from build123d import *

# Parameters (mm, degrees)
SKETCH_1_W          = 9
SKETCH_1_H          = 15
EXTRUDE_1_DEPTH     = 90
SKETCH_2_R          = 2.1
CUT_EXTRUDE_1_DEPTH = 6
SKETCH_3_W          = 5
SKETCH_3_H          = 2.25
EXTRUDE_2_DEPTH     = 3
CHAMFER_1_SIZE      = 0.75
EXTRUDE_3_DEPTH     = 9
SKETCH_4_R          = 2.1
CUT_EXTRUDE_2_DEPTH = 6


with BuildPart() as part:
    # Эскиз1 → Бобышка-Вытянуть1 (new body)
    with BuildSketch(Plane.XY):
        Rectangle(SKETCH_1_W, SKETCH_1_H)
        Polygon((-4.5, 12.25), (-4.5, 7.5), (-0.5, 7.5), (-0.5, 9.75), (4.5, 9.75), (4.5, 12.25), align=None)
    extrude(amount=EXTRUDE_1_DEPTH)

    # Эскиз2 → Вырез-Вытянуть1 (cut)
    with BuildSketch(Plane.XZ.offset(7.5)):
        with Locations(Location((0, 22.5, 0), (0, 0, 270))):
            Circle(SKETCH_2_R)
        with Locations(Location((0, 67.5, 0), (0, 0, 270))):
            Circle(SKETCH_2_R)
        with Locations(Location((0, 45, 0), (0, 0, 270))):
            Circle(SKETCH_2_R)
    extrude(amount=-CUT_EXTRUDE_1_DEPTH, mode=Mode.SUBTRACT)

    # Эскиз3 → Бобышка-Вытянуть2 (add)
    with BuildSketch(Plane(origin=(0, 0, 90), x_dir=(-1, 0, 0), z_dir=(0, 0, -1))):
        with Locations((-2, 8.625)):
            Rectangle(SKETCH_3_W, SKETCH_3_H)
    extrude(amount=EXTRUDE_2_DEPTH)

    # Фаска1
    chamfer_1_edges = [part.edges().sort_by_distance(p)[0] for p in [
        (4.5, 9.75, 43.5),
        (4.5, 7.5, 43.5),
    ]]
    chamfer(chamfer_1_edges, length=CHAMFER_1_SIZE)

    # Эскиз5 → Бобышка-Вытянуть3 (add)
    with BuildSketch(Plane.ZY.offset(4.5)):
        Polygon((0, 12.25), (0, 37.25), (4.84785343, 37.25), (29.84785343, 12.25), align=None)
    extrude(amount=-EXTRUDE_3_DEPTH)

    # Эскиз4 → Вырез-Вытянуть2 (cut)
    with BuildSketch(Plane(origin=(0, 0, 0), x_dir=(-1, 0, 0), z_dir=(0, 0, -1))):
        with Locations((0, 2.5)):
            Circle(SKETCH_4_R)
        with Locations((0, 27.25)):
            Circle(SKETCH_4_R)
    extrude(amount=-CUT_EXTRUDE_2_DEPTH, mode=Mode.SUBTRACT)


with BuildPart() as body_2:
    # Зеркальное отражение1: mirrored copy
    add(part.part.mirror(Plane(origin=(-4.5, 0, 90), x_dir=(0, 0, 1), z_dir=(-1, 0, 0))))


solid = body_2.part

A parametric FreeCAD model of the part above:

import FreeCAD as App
import Part
import Sketcher
Q = App.Units.Quantity


def edges_at(feature, points):
    """Names of the edges that pass closest to the given points."""
    edges = feature.Shape.Edges
    near = lambda p: min(range(len(edges)), key=lambda i: edges[i].distToShape(Part.Vertex(*p))[0])
    return sorted({f"Edge{near(p) + 1}" for p in points})

doc = App.newDocument("Part")
body = doc.addObject("PartDesign::Body", "Body")

# Sketch on XY plane
sketch1 = doc.addObject("Sketcher::SketchObject", "Sketch")
body.addObject(sketch1)
sketch1.AttachmentSupport = (doc.XY_Plane, [""])
sketch1.MapMode = "FlatFace"
sketch1.addGeometry(Part.LineSegment(App.Vector(-4.5, -7.5, 0), App.Vector(4.5, -7.5, 0)), False)
sketch1.addGeometry(Part.LineSegment(App.Vector(4.5, -7.5, 0), App.Vector(4.5, 7.5, 0)), False)
sketch1.addGeometry(Part.LineSegment(App.Vector(4.5, 7.5, 0), App.Vector(-0.5, 7.5, 0)), False)
sketch1.addGeometry(Part.LineSegment(App.Vector(-0.5, 7.5, 0), App.Vector(-0.5, 9.8, 0)), False)
sketch1.addGeometry(Part.LineSegment(App.Vector(-0.5, 9.8, 0), App.Vector(4.5, 9.8, 0)), False)
sketch1.addGeometry(Part.LineSegment(App.Vector(4.5, 9.8, 0), App.Vector(4.5, 12.2, 0)), False)
sketch1.addGeometry(Part.LineSegment(App.Vector(4.5, 12.2, 0), App.Vector(-4.5, 12.2, 0)), False)
sketch1.addGeometry(Part.LineSegment(App.Vector(-4.5, 12.2, 0), App.Vector(-4.5, -7.5, 0)), False)
sketch1.addConstraint(Sketcher.Constraint("Coincident", 0, 2, 1, 1))
sketch1.addConstraint(Sketcher.Constraint("Coincident", 1, 2, 2, 1))
sketch1.addConstraint(Sketcher.Constraint("Coincident", 2, 2, 3, 1))
sketch1.addConstraint(Sketcher.Constraint("Coincident", 3, 2, 4, 1))
sketch1.addConstraint(Sketcher.Constraint("Coincident", 4, 2, 5, 1))
sketch1.addConstraint(Sketcher.Constraint("Coincident", 5, 2, 6, 1))
sketch1.addConstraint(Sketcher.Constraint("Coincident", 6, 2, 7, 1))
sketch1.addConstraint(Sketcher.Constraint("Coincident", 7, 2, 0, 1))
sketch1.addConstraint(Sketcher.Constraint("Horizontal", 0))
sketch1.addConstraint(Sketcher.Constraint("Vertical", 1))
sketch1.addConstraint(Sketcher.Constraint("Horizontal", 2))
sketch1.addConstraint(Sketcher.Constraint("Vertical", 3))
sketch1.addConstraint(Sketcher.Constraint("Horizontal", 4))
sketch1.addConstraint(Sketcher.Constraint("Vertical", 5))
sketch1.addConstraint(Sketcher.Constraint("Horizontal", 6))
sketch1.addConstraint(Sketcher.Constraint("Vertical", 7))
sketch1.addConstraint(Sketcher.Constraint("Symmetric", 1, 2, 7, 2, -1, 1))
sketch1.addConstraint(Sketcher.Constraint("Vertical", 1, 2, 4, 2))
sketch1.addConstraint(Sketcher.Constraint("DistanceX", 0, 1, 0, 2, 9.0))
sketch1.addConstraint(Sketcher.Constraint("DistanceX", 2, 2, 2, 1, 5.0))
sketch1.addConstraint(Sketcher.Constraint("DistanceY", 1, 1, 1, 2, 15.0))
sketch1.addConstraint(Sketcher.Constraint("DistanceY", 5, 1, 5, 2, 2.5))
sketch1.addConstraint(Sketcher.Constraint("DistanceY", 3, 1, 3, 2, 2.25))
pad1 = doc.addObject("PartDesign::Pad", "Pad")
body.addObject(pad1)
pad1.Profile = sketch1
pad1.Length = 90

# Sketch on XZ plane
sketch2 = doc.addObject("Sketcher::SketchObject", "Sketch001")
body.addObject(sketch2)
sketch2.AttachmentSupport = (doc.XZ_Plane, [""])
sketch2.MapMode = "FlatFace"
sketch2.AttachmentOffset = App.Placement(App.Vector(0, 0, 7.5), App.Rotation())
sketch2.addGeometry(Part.Circle(App.Vector(0, 22.5, 0), App.Vector(0, 0, 1), 2.1), False)
sketch2.addGeometry(Part.Circle(App.Vector(0, 67.5, 0), App.Vector(0, 0, 1), 2.1), False)
sketch2.addGeometry(Part.Circle(App.Vector(0, 45, 0), App.Vector(0, 0, 1), 2.1), False)
sketch2.addConstraint(Sketcher.Constraint("Equal", 0, 1))
sketch2.addConstraint(Sketcher.Constraint("Equal", 1, 2))
sketch2.addConstraint(Sketcher.Constraint("PointOnObject", 0, 3, -2))
sketch2.addConstraint(Sketcher.Constraint("PointOnObject", 1, 3, -2))
sketch2.addConstraint(Sketcher.Constraint("PointOnObject", 2, 3, -2))
sketch2.addConstraint(Sketcher.Constraint("Diameter", 0, 4.2))
sketch2.addConstraint(Sketcher.Constraint("DistanceY", -1, 1, 2, 3, 45.0))
sketch2.addConstraint(Sketcher.Constraint("DistanceY", 0, 3, 1, 3, 45.0))
sketch2.addConstraint(Sketcher.Constraint("DistanceY", -1, 1, 0, 3, 22.5))
pocket1 = doc.addObject("PartDesign::Pocket", "Pocket")
body.addObject(pocket1)
pocket1.Profile = sketch2
pocket1.Length = 6

# Sketch on XY plane
sketch3 = doc.addObject("Sketcher::SketchObject", "Sketch002")
body.addObject(sketch3)
sketch3.AttachmentSupport = (doc.XY_Plane, [""])
sketch3.MapMode = "FlatFace"
sketch3.AttachmentOffset = App.Placement(App.Vector(0, 0, 90), App.Rotation())
sketch3.addGeometry(Part.LineSegment(App.Vector(4.5, 9.8, 0), App.Vector(4.5, 7.5, 0)), False)
sketch3.addGeometry(Part.LineSegment(App.Vector(4.5, 7.5, 0), App.Vector(-0.5, 7.5, 0)), False)
sketch3.addGeometry(Part.LineSegment(App.Vector(-0.5, 7.5, 0), App.Vector(-0.5, 9.8, 0)), False)
sketch3.addGeometry(Part.LineSegment(App.Vector(-0.5, 9.8, 0), App.Vector(4.5, 9.8, 0)), False)
sketch3.addConstraint(Sketcher.Constraint("Coincident", 0, 2, 1, 1))
sketch3.addConstraint(Sketcher.Constraint("Coincident", 1, 2, 2, 1))
sketch3.addConstraint(Sketcher.Constraint("Coincident", 2, 2, 3, 1))
sketch3.addConstraint(Sketcher.Constraint("Coincident", 3, 2, 0, 1))
sketch3.addConstraint(Sketcher.Constraint("Vertical", 0))
sketch3.addConstraint(Sketcher.Constraint("Horizontal", 1))
sketch3.addConstraint(Sketcher.Constraint("Vertical", 2))
sketch3.addConstraint(Sketcher.Constraint("Horizontal", 3))
sketch3.addConstraint(Sketcher.Constraint("DistanceX", 1, 2, 1, 1, 5.0))
sketch3.addConstraint(Sketcher.Constraint("DistanceY", 0, 2, 0, 1, 2.25))
sketch3.addConstraint(Sketcher.Constraint("DistanceX", -1, 1, 0, 2, 4.5))
sketch3.addConstraint(Sketcher.Constraint("DistanceY", -1, 1, 0, 2, 7.5))
pad2 = doc.addObject("PartDesign::Pad", "Pad001")
body.addObject(pad2)
pad2.Profile = sketch3
pad2.Length = 3
pad2.Reversed = True
doc.recompute()

chamfer = doc.addObject("PartDesign::Chamfer", "Chamfer")
body.addObject(chamfer)
chamfer.Base = (pad2, edges_at(pad2, [(4.5, 9.75, 43.5), (4.5, 7.5, 43.5)]))
chamfer.Size = 0.75

# Sketch on YZ plane
sketch4 = doc.addObject("Sketcher::SketchObject", "Sketch003")
body.addObject(sketch4)
sketch4.AttachmentSupport = (doc.YZ_Plane, [""])
sketch4.MapMode = "FlatFace"
sketch4.AttachmentOffset = App.Placement(App.Vector(0, 0, -4.5), App.Rotation())
sketch4.addGeometry(Part.LineSegment(App.Vector(37.2, 0, 0), App.Vector(12.2, 0, 0)), False)
sketch4.addGeometry(Part.LineSegment(App.Vector(12.2, 0, 0), App.Vector(12.2, 29.8, 0)), False)
sketch4.addGeometry(Part.LineSegment(App.Vector(12.2, 29.8, 0), App.Vector(37.2, 4.8, 0)), False)
sketch4.addGeometry(Part.LineSegment(App.Vector(37.2, 4.8, 0), App.Vector(37.2, 0, 0)), False)
sketch4.addConstraint(Sketcher.Constraint("Coincident", 0, 2, 1, 1))
sketch4.addConstraint(Sketcher.Constraint("Coincident", 1, 2, 2, 1))
sketch4.addConstraint(Sketcher.Constraint("Coincident", 2, 2, 3, 1))
sketch4.addConstraint(Sketcher.Constraint("Coincident", 3, 2, 0, 1))
sketch4.addConstraint(Sketcher.Constraint("Horizontal", 0))
sketch4.addConstraint(Sketcher.Constraint("Vertical", 1))
sketch4.addConstraint(Sketcher.Constraint("Vertical", 3))
sketch4.addConstraint(Sketcher.Constraint("PointOnObject", 0, 2, -1))
sketch4.addConstraint(Sketcher.Constraint("DistanceX", 0, 2, 0, 1, 25.0))
sketch4.addConstraint(Sketcher.Constraint("Angle", 2, Q("-45 deg")))
sketch4.addConstraint(Sketcher.Constraint("DistanceX", -1, 1, 0, 2, 12.25))
sketch4.addConstraint(Sketcher.Constraint("DistanceY", 1, 1, 1, 2, 29.847853))
pad3 = doc.addObject("PartDesign::Pad", "Pad002")
body.addObject(pad3)
pad3.Profile = sketch4
pad3.Length = 9

# Sketch on XY plane
sketch5 = doc.addObject("Sketcher::SketchObject", "Sketch004")
body.addObject(sketch5)
sketch5.AttachmentSupport = (doc.XY_Plane, [""])
sketch5.MapMode = "FlatFace"
sketch5.addGeometry(Part.Circle(App.Vector(0, 2.5, 0), App.Vector(0, 0, 1), 2.1), False)
sketch5.addGeometry(Part.Circle(App.Vector(0, 27.2, 0), App.Vector(0, 0, 1), 2.1), False)
sketch5.addConstraint(Sketcher.Constraint("Equal", 0, 1))
sketch5.addConstraint(Sketcher.Constraint("PointOnObject", 0, 3, -2))
sketch5.addConstraint(Sketcher.Constraint("PointOnObject", 1, 3, -2))
sketch5.addConstraint(Sketcher.Constraint("Diameter", 0, 4.2))
sketch5.addConstraint(Sketcher.Constraint("DistanceY", -1, 1, 0, 3, 2.5))
sketch5.addConstraint(Sketcher.Constraint("DistanceY", -1, 1, 1, 3, 27.25))
pocket2 = doc.addObject("PartDesign::Pocket", "Pocket001")
body.addObject(pocket2)
pocket2.Profile = sketch5
pocket2.Length = 6
pocket2.Reversed = True
body2 = doc.addObject("PartDesign::Body", "Body001")
doc.recompute()

mirroring = doc.addObject("Part::Mirroring", "Mirroring")
mirroring.Source = body
mirroring.Base = App.Vector(-4.5, 0, 90)
mirroring.Normal = App.Vector(-1, 0, 0)
body2.BaseFeature = mirroring
doc.recompute()
body.Visibility = False
mirroring.Visibility = False

doc.recompute()
